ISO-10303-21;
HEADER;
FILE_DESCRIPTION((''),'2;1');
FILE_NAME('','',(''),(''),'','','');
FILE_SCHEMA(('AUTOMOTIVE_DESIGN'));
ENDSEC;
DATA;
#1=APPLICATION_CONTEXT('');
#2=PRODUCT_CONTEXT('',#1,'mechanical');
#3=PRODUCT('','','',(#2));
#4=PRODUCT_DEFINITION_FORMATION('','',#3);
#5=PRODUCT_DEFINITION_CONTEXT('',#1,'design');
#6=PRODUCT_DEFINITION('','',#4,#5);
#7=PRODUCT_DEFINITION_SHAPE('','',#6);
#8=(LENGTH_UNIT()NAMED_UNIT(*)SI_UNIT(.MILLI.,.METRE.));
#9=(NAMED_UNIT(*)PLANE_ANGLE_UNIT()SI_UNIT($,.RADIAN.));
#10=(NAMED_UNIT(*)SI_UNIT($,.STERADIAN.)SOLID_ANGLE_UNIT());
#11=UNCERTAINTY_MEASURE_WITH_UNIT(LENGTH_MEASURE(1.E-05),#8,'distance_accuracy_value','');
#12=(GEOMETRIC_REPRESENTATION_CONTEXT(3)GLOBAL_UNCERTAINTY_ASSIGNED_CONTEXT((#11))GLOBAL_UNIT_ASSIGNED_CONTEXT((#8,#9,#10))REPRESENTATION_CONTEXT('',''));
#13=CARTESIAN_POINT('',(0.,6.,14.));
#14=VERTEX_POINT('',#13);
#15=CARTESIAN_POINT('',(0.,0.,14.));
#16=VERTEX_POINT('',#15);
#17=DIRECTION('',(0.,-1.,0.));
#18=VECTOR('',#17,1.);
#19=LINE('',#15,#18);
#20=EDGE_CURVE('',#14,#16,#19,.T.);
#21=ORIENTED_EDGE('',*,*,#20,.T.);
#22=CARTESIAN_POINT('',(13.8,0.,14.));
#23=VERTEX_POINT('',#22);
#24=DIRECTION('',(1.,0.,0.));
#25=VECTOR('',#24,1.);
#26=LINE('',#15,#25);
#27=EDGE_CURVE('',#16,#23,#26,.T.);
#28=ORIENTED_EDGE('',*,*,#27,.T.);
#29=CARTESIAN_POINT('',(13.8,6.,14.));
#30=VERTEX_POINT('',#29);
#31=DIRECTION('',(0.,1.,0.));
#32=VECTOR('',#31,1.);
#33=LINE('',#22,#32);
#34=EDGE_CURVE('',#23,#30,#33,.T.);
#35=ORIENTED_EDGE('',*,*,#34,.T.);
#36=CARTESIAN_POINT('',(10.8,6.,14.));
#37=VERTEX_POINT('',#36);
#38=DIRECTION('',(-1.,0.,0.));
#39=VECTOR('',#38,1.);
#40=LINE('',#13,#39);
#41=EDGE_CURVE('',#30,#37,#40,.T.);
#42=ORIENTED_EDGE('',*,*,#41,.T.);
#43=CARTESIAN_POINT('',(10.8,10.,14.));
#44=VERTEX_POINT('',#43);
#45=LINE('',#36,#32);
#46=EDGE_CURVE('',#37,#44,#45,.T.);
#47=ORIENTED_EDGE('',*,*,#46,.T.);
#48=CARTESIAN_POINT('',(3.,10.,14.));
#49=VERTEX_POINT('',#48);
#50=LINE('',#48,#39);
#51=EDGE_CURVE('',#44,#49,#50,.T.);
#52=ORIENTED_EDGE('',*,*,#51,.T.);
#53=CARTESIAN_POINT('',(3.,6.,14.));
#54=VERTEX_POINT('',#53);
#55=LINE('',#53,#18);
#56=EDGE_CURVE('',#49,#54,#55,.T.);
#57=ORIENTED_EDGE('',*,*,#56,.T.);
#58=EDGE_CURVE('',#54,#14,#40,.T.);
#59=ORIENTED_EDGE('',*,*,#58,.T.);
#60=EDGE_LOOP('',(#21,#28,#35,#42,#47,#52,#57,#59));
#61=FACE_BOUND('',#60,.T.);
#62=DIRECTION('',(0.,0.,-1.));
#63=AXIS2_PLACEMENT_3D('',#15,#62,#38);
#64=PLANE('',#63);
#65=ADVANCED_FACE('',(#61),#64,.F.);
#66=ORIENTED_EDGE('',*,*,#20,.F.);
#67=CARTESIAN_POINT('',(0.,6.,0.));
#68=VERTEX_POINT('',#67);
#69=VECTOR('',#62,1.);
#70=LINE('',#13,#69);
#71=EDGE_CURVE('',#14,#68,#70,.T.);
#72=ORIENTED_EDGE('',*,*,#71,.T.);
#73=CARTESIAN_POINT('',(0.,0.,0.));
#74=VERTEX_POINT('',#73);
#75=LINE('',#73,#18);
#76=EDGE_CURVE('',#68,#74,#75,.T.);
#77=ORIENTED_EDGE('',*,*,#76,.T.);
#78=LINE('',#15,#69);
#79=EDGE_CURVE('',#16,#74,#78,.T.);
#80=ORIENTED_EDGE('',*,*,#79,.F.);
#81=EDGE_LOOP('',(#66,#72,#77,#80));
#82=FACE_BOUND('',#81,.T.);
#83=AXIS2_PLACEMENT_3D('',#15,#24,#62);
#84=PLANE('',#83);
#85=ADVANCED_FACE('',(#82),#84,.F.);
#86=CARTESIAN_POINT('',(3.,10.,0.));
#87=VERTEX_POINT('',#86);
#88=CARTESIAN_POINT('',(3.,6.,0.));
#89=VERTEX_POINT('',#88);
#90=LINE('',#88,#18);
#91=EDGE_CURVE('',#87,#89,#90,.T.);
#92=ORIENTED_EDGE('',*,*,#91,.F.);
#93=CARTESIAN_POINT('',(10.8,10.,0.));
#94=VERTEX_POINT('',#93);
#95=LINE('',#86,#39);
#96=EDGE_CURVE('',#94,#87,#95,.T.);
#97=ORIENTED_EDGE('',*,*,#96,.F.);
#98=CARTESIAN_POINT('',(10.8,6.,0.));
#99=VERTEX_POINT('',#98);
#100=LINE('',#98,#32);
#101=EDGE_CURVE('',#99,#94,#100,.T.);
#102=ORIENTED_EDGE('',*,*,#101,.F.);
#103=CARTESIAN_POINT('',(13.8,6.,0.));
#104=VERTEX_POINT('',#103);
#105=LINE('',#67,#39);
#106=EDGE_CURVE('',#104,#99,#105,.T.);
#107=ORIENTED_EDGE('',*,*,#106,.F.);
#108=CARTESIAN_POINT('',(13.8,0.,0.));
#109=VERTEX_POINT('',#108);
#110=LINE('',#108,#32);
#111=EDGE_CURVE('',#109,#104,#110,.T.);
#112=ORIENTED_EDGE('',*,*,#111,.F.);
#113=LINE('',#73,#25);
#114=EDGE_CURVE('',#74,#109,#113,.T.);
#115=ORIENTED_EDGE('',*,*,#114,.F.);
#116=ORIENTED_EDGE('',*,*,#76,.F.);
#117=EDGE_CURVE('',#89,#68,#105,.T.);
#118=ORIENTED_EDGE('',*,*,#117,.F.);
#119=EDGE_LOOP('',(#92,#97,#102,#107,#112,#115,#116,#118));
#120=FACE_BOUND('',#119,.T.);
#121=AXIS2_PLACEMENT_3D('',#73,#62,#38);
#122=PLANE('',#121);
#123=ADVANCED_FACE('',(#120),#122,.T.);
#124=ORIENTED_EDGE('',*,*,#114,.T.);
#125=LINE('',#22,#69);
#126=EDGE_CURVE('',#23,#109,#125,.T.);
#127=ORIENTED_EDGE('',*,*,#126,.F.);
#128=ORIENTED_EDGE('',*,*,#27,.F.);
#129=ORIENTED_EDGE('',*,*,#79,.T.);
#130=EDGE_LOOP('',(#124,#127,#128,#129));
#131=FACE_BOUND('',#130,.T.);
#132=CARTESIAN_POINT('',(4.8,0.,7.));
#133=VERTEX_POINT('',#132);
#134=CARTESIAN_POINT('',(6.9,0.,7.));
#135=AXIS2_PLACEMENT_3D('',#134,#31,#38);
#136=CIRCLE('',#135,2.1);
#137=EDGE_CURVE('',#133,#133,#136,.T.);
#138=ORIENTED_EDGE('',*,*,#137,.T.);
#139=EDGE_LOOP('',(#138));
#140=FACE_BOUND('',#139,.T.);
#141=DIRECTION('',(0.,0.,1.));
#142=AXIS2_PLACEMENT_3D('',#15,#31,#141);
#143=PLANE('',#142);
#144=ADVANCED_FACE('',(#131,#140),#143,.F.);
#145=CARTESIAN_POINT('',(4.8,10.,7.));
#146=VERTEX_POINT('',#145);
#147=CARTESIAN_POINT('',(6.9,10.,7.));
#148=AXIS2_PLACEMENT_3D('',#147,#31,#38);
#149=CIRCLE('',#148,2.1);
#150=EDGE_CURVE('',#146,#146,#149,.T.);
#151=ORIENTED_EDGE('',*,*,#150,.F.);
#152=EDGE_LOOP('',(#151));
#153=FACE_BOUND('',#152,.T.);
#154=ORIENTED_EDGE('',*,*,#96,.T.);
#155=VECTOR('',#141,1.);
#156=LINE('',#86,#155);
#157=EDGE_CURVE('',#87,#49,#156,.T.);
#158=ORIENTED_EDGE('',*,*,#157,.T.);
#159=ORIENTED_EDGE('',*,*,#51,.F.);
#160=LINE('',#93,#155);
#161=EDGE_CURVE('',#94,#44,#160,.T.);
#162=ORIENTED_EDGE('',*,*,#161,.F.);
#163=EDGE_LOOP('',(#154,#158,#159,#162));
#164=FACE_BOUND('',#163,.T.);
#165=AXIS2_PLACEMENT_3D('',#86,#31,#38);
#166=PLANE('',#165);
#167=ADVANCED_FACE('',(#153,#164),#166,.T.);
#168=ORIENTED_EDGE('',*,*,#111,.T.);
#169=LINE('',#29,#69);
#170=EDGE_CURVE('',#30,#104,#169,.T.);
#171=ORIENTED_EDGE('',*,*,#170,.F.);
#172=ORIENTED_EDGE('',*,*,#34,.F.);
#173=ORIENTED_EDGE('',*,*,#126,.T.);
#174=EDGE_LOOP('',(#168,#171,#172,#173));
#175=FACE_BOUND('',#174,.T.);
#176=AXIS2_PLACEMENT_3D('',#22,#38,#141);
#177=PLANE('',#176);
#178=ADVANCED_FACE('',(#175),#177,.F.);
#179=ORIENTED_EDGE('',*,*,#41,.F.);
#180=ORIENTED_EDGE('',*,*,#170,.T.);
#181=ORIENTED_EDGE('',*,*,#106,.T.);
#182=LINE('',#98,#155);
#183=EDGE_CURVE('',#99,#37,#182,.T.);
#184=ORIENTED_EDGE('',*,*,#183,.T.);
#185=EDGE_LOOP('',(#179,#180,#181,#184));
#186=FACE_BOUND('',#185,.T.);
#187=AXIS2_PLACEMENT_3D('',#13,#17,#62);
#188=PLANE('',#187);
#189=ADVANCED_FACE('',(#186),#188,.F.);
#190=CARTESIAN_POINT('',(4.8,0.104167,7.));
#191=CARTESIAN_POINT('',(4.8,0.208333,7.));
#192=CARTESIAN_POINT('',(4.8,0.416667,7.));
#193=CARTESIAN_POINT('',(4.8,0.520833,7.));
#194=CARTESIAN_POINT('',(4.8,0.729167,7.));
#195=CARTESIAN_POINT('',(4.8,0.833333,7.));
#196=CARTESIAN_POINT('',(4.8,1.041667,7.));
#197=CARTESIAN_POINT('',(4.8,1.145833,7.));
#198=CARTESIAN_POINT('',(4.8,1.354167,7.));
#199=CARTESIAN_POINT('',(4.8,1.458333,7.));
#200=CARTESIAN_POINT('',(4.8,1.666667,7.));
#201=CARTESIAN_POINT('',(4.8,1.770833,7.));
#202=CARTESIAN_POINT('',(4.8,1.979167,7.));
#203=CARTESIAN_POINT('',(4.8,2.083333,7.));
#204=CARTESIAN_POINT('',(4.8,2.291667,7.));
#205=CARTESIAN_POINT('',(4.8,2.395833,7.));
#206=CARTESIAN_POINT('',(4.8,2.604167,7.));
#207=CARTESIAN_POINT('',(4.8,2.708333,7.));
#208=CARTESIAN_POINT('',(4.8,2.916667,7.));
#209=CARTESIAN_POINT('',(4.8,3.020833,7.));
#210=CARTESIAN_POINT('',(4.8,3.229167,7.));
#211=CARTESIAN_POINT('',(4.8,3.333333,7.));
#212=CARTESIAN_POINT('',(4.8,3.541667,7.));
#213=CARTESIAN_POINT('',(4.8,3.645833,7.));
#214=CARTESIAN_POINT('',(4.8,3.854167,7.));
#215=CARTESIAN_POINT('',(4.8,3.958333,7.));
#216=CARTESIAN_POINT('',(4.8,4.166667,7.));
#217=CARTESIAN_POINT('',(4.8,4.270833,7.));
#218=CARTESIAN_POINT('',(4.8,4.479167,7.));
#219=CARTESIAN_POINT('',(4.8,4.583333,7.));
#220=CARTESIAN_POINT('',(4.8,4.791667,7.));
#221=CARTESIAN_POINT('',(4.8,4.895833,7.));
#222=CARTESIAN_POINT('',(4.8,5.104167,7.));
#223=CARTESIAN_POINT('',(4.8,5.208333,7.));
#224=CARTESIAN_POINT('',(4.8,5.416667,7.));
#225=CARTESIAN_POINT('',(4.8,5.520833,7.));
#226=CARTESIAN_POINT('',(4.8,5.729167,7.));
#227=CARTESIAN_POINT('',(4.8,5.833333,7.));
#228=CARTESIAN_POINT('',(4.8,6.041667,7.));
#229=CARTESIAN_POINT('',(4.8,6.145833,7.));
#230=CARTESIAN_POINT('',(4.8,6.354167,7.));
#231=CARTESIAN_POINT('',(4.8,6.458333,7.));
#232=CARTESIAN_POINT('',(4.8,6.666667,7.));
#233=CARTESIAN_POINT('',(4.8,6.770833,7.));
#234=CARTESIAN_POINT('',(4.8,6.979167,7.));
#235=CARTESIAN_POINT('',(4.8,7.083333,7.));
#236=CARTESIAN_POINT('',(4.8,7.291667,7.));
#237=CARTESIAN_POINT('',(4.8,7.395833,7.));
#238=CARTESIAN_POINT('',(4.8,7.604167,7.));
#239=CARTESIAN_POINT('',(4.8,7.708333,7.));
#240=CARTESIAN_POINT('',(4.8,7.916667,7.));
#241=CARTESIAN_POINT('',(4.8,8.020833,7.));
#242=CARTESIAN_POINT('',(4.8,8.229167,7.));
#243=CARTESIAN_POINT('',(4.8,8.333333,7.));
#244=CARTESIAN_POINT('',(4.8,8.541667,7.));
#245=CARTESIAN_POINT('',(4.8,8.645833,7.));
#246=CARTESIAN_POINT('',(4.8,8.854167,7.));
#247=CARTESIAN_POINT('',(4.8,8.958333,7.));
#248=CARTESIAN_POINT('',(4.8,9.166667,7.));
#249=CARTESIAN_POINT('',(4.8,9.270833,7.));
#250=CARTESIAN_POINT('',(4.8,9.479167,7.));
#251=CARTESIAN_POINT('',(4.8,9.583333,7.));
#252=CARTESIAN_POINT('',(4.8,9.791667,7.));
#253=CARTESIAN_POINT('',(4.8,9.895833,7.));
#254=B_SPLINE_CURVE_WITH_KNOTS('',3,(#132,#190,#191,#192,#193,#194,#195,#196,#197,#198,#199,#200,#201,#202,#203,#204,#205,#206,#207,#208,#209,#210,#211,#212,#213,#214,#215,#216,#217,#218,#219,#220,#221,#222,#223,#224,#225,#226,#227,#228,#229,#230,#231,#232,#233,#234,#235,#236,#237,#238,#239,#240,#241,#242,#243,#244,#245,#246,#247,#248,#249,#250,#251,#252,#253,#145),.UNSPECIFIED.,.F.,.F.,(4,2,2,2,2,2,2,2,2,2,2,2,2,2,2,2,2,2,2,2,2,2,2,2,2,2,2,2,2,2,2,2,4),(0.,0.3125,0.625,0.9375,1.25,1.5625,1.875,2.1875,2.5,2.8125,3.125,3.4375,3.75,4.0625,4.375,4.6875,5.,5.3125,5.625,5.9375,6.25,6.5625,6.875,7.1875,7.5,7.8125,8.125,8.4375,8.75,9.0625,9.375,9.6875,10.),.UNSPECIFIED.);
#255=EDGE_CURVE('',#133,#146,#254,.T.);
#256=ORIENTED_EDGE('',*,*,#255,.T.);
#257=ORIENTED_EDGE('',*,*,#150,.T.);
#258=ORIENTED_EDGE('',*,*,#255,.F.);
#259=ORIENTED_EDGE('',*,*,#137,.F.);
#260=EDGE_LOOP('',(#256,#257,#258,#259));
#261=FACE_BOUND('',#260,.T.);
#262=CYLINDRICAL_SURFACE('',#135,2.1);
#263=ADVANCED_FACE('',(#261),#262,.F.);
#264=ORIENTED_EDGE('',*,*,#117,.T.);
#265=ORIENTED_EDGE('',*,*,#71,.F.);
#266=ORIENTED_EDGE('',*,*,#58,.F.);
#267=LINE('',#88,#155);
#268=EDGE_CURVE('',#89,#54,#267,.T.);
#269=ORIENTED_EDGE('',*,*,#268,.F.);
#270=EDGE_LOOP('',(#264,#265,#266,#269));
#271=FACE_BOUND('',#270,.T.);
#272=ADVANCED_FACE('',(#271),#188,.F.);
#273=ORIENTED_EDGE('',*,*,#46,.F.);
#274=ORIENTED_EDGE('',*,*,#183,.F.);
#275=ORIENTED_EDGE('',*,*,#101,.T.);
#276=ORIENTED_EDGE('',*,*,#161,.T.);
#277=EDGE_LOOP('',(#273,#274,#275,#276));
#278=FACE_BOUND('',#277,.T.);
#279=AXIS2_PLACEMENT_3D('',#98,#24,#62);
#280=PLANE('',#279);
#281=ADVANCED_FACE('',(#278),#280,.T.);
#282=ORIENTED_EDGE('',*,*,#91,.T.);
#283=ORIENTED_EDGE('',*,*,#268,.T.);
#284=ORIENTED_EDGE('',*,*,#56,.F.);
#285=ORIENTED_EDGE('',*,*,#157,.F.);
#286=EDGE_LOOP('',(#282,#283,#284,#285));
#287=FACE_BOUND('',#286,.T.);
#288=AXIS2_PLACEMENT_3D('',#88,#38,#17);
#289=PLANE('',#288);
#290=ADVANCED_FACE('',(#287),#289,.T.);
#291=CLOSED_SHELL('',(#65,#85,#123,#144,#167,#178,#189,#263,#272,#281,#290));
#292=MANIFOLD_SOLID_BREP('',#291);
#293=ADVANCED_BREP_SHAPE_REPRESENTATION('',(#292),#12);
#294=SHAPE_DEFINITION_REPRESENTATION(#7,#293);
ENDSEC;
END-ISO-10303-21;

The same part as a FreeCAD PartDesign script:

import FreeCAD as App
import Part
import Sketcher

V = App.Vector
Q = App.Units.Quantity


def add_polygon(sketch, points):
    """Adds a closed chain of lines whose ends are joined by coincident constraints."""
    first, n = sketch.GeometryCount, len(points)
    for a, b in zip(points, points[1:] + points[:1]):
        sketch.addGeometry(Part.LineSegment(App.Vector(*a, 0), App.Vector(*b, 0)), False)
    for i in range(n):
        sketch.addConstraint(Sketcher.Constraint("Coincident", first + i, 2, first + (i + 1) % n, 1))

doc = App.newDocument("Part")
body = doc.addObject("PartDesign::Body", "Body")

sketch1 = body.newObject("Sketcher::SketchObject", "Sketch")
sketch1.AttachmentSupport = (doc.getObject("XY_Plane"), [""])
sketch1.MapMode = "FlatFace"
add_polygon(sketch1, [(0, 6), (0, 0), (14, 0), (14, 6)])
sketch1.addConstraint(Sketcher.Constraint("Vertical", 0))
sketch1.addConstraint(Sketcher.Constraint("Horizontal", 1))
sketch1.addConstraint(Sketcher.Constraint("Vertical", 2))
sketch1.addConstraint(Sketcher.Constraint("Horizontal", 3))
sketch1.addConstraint(Sketcher.Constraint("Coincident", 0, 2, -1, 1))
sketch1.addConstraint(Sketcher.Constraint("DistanceY", 0, 2, 0, 1, Q("6 mm")))
sketch1.addConstraint(Sketcher.Constraint("DistanceX", 1, 1, 1, 2, Q("13.8 mm")))
pad1 = body.newObject("PartDesign::Pad", "Pad")
pad1.Profile = sketch1
pad1.Length = 14

sketch2 = body.newObject("Sketcher::SketchObject", "Sketch001")
sketch2.AttachmentSupport = (doc.getObject("XY_Plane"), [""])
sketch2.MapMode = "FlatFace"
sketch2.AttachmentOffset = App.Placement(V(0, 0, 14), App.Rotation())
add_polygon(sketch2, [(3, 10), (3, 6), (10.8, 6), (10.8, 10)])
sketch2.addConstraint(Sketcher.Constraint("Vertical", 0))
sketch2.addConstraint(Sketcher.Constraint("Horizontal", 1))
sketch2.addConstraint(Sketcher.Constraint("Vertical", 2))
sketch2.addConstraint(Sketcher.Constraint("Horizontal", 3))
sketch2.addConstraint(Sketcher.Constraint("DistanceY", 0, 2, 0, 1, Q("4 mm")))
sketch2.addConstraint(Sketcher.Constraint("DistanceX", 1, 1, 1, 2, Q("7.8 mm")))
sketch2.addConstraint(Sketcher.Constraint("DistanceX", -1, 1, 0, 2, Q("3 mm")))
sketch2.addConstraint(Sketcher.Constraint("DistanceY", -1, 1, 0, 2, Q("6 mm")))
pad2 = body.newObject("PartDesign::Pad", "Pad001")
pad2.Profile = sketch2
pad2.Length = 14
pad2.Reversed = True

sketch3 = body.newObject("Sketcher::SketchObject", "Sketch002")
sketch3.AttachmentSupport = (doc.getObject("XZ_Plane"), [""])
sketch3.MapMode = "FlatFace"
sketch3.AttachmentOffset = App.Placement(V(0, 0, -10), App.Rotation())
sketch3.addGeometry(Part.Circle(V(6.9, 7, 0), V(0, 0, 1), 2.1), False)
sketch3.addConstraint(Sketcher.Constraint("Diameter", 0, Q("4.2 mm")))
sketch3.addConstraint(Sketcher.Constraint("DistanceY", -1, 1, 0, 3, Q("7 mm")))
sketch3.addConstraint(Sketcher.Constraint("DistanceX", -1, 1, 0, 3, Q("6.9 mm")))
pocket1 = body.newObject("PartDesign::Pocket", "Pocket")
pocket1.Profile = sketch3
pocket1.Type = "ThroughAll"
pocket1.Reversed = True

doc.recompute()
